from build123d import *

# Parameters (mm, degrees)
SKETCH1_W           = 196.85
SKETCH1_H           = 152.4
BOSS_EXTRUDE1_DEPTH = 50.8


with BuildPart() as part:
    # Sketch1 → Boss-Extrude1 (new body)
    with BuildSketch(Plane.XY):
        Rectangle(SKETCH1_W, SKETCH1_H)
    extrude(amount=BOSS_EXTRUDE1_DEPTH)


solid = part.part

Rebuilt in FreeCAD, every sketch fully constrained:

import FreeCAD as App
import Part
import Sketcher
from FreeCAD import Vector
Q = App.Units.Quantity


def add_polygon(sketch, points):
    """Adds a closed chain of lines whose ends are joined by coincident constraints."""
    first, n = sketch.GeometryCount, len(points)
    for a, b in zip(points, points[1:] + points[:1]):
        sketch.addGeometry(Part.LineSegment(App.Vector(*a, 0), App.Vector(*b, 0)), False)
    for i in range(n):
        sketch.addConstraint(Sketcher.Constraint("Coincident", first + i, 2, first + (i + 1) % n, 1))

doc = App.newDocument("Part")
body = doc.addObject("PartDesign::Body", "Body")

sketch1 = body.newObject("Sketcher::SketchObject", "Sketch")
sketch1.AttachmentSupport = (doc.getObject("XY_Plane"), [""])
sketch1.MapMode = "FlatFace"
add_polygon(sketch1, [(-98, 76), (-98, -76), (98, -76), (98, 76)])
sketch1.addConstraint([
    Sketcher.Constraint("Vertical", 0),
    Sketcher.Constraint("Horizontal", 1),
    Sketcher.Constraint("Vertical", 2),
    Sketcher.Constraint("Horizontal", 3),
    Sketcher.Constraint("Symmetric", 0, 2, 2, 2, -1, 1),
    Sketcher.Constraint("DistanceY", 0, 2, 0, 1, Q("6 in")),
    Sketcher.Constraint("DistanceX", 1, 1, 1, 2, Q("7.75 in")),
])
pad1 = body.newObject("PartDesign::Pad", "Pad")
pad1.Profile = sketch1
pad1.Length = Q("2 in")

doc.recompute()
